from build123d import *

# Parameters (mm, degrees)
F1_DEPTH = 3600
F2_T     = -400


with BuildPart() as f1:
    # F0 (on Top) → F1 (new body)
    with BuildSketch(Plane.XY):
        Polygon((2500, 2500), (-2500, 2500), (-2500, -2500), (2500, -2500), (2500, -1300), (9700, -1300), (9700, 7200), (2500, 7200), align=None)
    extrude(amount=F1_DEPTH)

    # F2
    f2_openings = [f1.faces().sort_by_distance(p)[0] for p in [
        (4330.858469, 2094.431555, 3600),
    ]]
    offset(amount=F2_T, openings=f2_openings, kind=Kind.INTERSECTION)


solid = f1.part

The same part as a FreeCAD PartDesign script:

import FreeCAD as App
import Part
import Sketcher
from FreeCAD import Vector


def faces_at(feature, points):
    """Names of the faces that lie closest to the given points."""
    faces = feature.Shape.Faces
    near = lambda p: min(range(len(faces)), key=lambda i: faces[i].distToShape(Part.Vertex(*p))[0])
    return sorted({f"Face{near(p) + 1}" for p in points})

doc = App.newDocument("Part")
params = doc.addObject("Spreadsheet::Sheet", "Params")
for row, (alias, value) in enumerate([
    ("sketch1_width", "5000 mm"),
    ("sketch1_width2", "7200 mm"),
    ("sketch1_height", "1200 mm"),
    ("sketch1_height2", "8500 mm"),
    ("pad1_length", "3600 mm"),
    ("thickness_wall", "400 mm"),
], start=1):
    params.set(f"A{row}", alias)
    params.set(f"B{row}", "=" + value)
    params.setAlias(f"B{row}", alias)

body = doc.addObject("PartDesign::Body", "Body")

# Sketch on XY plane
sketch1 = doc.addObject("Sketcher::SketchObject", "Sketch")
body.addObject(sketch1)
sketch1.AttachmentSupport = (doc.XY_Plane, [""])
sketch1.MapMode = "FlatFace"
sketch1.addGeometry(Part.LineSegment(Vector(2500, 2500, 0), Vector(-2500, 2500, 0)), False)
sketch1.addGeometry(Part.LineSegment(Vector(-2500, 2500, 0), Vector(-2500, -2500, 0)), False)
sketch1.addGeometry(Part.LineSegment(Vector(-2500, -2500, 0), Vector(2500, -2500, 0)), False)
sketch1.addGeometry(Part.LineSegment(Vector(2500, -2500, 0), Vector(2500, -1300, 0)), False)
sketch1.addGeometry(Part.LineSegment(Vector(2500, -1300, 0), Vector(9700, -1300, 0)), False)
sketch1.addGeometry(Part.LineSegment(Vector(9700, -1300, 0), Vector(9700, 7200, 0)), False)
sketch1.addGeometry(Part.LineSegment(Vector(9700, 7200, 0), Vector(2500, 7200, 0)), False)
sketch1.addGeometry(Part.LineSegment(Vector(2500, 7200, 0), Vector(2500, 2500, 0)), False)
sketch1.addConstraint(Sketcher.Constraint("Coincident", 0, 2, 1, 1))
sketch1.addConstraint(Sketcher.Constraint("Coincident", 1, 2, 2, 1))
sketch1.addConstraint(Sketcher.Constraint("Coincident", 2, 2, 3, 1))
sketch1.addConstraint(Sketcher.Constraint("Coincident", 3, 2, 4, 1))
sketch1.addConstraint(Sketcher.Constraint("Coincident", 4, 2, 5, 1))
sketch1.addConstraint(Sketcher.Constraint("Coincident", 5, 2, 6, 1))
sketch1.addConstraint(Sketcher.Constraint("Coincident", 6, 2, 7, 1))
sketch1.addConstraint(Sketcher.Constraint("Coincident", 7, 2, 0, 1))
sketch1.addConstraint(Sketcher.Constraint("Horizontal", 0))
sketch1.addConstraint(Sketcher.Constraint("Vertical", 1))
sketch1.addConstraint(Sketcher.Constraint("Horizontal", 2))
sketch1.addConstraint(Sketcher.Constraint("Vertical", 3))
sketch1.addConstraint(Sketcher.Constraint("Horizontal", 4))
sketch1.addConstraint(Sketcher.Constraint("Vertical", 5))
sketch1.addConstraint(Sketcher.Constraint("Horizontal", 6))
sketch1.addConstraint(Sketcher.Constraint("Vertical", 7))
sketch1.addConstraint(Sketcher.Constraint("Symmetric", 0, 2, 2, 2, -1, 1))
sketch1.addConstraint(Sketcher.Constraint("Vertical", 3, 2, 6, 2))
sketch1.addConstraint(Sketcher.Constraint("Equal", 2, 1))
sketch1.addConstraint(Sketcher.Constraint("DistanceX", 0, 2, 0, 1, 5000.0))
sketch1.addConstraint(Sketcher.Constraint("DistanceX", 4, 1, 4, 2, 7200.0))
sketch1.addConstraint(Sketcher.Constraint("DistanceY", 3, 1, 3, 2, 1200.0))
sketch1.addConstraint(Sketcher.Constraint("DistanceY", 5, 1, 5, 2, 8500.0))
sketch1.setExpression("Constraints[19]", "Params.sketch1_width")
sketch1.setExpression("Constraints[20]", "Params.sketch1_width2")
sketch1.setExpression("Constraints[21]", "Params.sketch1_height")
sketch1.setExpression("Constraints[22]", "Params.sketch1_height2")
pad1 = doc.addObject("PartDesign::Pad", "Pad")
body.addObject(pad1)
pad1.Profile = sketch1
pad1.setExpression("Length", "Params.pad1_length")
doc.recompute()

thickness = doc.addObject("PartDesign::Thickness", "Thickness")
body.addObject(thickness)
thickness.Base = (pad1, faces_at(pad1, [(3600, 2350, 3600)]))
thickness.setExpression("Value", "Params.thickness_wall")
thickness.Reversed = True
thickness.Join = "Intersection"

doc.recompute()
